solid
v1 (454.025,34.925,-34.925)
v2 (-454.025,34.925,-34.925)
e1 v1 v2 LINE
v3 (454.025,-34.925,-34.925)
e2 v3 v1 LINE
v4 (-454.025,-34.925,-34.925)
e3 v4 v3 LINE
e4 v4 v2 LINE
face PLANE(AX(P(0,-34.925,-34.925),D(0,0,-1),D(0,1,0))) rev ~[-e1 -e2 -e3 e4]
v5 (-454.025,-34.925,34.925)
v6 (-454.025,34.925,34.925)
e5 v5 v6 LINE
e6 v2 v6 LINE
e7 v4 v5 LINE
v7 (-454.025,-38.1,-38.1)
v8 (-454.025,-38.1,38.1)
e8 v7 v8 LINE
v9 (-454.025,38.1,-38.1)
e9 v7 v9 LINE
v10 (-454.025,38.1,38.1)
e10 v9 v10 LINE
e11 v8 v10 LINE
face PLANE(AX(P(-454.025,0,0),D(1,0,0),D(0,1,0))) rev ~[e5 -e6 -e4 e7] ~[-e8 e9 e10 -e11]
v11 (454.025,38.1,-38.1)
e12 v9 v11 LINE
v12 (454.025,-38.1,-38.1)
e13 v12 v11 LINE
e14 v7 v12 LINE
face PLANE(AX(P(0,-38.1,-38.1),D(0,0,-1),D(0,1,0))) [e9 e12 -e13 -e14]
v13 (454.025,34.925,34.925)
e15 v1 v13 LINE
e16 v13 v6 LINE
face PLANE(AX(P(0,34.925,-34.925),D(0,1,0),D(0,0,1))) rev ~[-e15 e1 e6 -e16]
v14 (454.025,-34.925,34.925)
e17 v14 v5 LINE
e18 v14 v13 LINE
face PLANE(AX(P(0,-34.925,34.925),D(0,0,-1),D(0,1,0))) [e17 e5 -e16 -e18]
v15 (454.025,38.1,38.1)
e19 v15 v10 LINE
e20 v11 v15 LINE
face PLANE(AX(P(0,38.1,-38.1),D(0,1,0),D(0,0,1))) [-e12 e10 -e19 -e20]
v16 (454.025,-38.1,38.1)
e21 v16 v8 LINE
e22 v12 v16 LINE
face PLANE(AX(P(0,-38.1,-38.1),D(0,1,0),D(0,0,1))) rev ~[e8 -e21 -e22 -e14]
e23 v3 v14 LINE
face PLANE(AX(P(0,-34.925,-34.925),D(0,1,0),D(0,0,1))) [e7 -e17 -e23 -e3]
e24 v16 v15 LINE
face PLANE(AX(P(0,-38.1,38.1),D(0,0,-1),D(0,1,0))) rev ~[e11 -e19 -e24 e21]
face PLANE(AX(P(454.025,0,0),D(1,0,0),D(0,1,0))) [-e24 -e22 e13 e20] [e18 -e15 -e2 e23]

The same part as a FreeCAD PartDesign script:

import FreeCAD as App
import Part
import Sketcher
from FreeCAD import Vector
Q = App.Units.Quantity

doc = App.newDocument("Part")
body = doc.addObject("PartDesign::Body", "Body")

# Sketch on YZ plane
sketch1 = body.newObject("Sketcher::SketchObject", "Sketch")
sketch1.AttachmentSupport = (doc.getObject("YZ_Plane"), [""])
sketch1.MapMode = "FlatFace"
sketch1.addGeometry([
    Part.LineSegment(Vector(-38, 38, 0), Vector(-38, -38, 0)),  # 0
    Part.LineSegment(Vector(-38, -38, 0), Vector(38, -38, 0)),  # 1
    Part.LineSegment(Vector(38, -38, 0), Vector(38, 38, 0)),  # 2
    Part.LineSegment(Vector(38, 38, 0), Vector(-38, 38, 0)),  # 3
    Part.LineSegment(Vector(35, -35, 0), Vector(-35, -35, 0)),  # 4
    Part.LineSegment(Vector(-35, -35, 0), Vector(-35, 35, 0)),  # 5
    Part.LineSegment(Vector(-35, 35, 0), Vector(35, 35, 0)),  # 6
    Part.LineSegment(Vector(35, 35, 0), Vector(35, -35, 0)),  # 7
], False)
sketch1.addConstraint([
    Sketcher.Constraint("Coincident", 0, 2, 1, 1),
    Sketcher.Constraint("Coincident", 1, 2, 2, 1),
    Sketcher.Constraint("Coincident", 2, 2, 3, 1),
    Sketcher.Constraint("Coincident", 3, 2, 0, 1),
    Sketcher.Constraint("Coincident", 4, 2, 5, 1),
    Sketcher.Constraint("Coincident", 5, 2, 6, 1),
    Sketcher.Constraint("Coincident", 6, 2, 7, 1),
    Sketcher.Constraint("Coincident", 7, 2, 4, 1),
    Sketcher.Constraint("Vertical", 0),
    Sketcher.Constraint("Horizontal", 1),
    Sketcher.Constraint("Vertical", 2),
    Sketcher.Constraint("Horizontal", 3),
    Sketcher.Constraint("Horizontal", 4),
    Sketcher.Constraint("Vertical", 5),
    Sketcher.Constraint("Horizontal", 6),
    Sketcher.Constraint("Vertical", 7),
    Sketcher.Constraint("Symmetric", 0, 2, 2, 2, -1, 1),
    Sketcher.Constraint("Symmetric", 4, 2, 6, 2, -1, 1),
    Sketcher.Constraint("Equal", 3, 0),
    Sketcher.Constraint("Equal", 6, 5),
    Sketcher.Constraint("DistanceX", 1, 1, 1, 2, Q("3 in")),
    Sketcher.Constraint("DistanceX", 4, 2, 4, 1, Q("2.75 in")),
])
pad1 = body.newObject("PartDesign::Pad", "Pad")
pad1.Profile = sketch1
pad1.Type = "TwoLengths"
pad1.Length = Q("17.875 in")
pad1.Length2 = Q("17.875 in")

doc.recompute()
